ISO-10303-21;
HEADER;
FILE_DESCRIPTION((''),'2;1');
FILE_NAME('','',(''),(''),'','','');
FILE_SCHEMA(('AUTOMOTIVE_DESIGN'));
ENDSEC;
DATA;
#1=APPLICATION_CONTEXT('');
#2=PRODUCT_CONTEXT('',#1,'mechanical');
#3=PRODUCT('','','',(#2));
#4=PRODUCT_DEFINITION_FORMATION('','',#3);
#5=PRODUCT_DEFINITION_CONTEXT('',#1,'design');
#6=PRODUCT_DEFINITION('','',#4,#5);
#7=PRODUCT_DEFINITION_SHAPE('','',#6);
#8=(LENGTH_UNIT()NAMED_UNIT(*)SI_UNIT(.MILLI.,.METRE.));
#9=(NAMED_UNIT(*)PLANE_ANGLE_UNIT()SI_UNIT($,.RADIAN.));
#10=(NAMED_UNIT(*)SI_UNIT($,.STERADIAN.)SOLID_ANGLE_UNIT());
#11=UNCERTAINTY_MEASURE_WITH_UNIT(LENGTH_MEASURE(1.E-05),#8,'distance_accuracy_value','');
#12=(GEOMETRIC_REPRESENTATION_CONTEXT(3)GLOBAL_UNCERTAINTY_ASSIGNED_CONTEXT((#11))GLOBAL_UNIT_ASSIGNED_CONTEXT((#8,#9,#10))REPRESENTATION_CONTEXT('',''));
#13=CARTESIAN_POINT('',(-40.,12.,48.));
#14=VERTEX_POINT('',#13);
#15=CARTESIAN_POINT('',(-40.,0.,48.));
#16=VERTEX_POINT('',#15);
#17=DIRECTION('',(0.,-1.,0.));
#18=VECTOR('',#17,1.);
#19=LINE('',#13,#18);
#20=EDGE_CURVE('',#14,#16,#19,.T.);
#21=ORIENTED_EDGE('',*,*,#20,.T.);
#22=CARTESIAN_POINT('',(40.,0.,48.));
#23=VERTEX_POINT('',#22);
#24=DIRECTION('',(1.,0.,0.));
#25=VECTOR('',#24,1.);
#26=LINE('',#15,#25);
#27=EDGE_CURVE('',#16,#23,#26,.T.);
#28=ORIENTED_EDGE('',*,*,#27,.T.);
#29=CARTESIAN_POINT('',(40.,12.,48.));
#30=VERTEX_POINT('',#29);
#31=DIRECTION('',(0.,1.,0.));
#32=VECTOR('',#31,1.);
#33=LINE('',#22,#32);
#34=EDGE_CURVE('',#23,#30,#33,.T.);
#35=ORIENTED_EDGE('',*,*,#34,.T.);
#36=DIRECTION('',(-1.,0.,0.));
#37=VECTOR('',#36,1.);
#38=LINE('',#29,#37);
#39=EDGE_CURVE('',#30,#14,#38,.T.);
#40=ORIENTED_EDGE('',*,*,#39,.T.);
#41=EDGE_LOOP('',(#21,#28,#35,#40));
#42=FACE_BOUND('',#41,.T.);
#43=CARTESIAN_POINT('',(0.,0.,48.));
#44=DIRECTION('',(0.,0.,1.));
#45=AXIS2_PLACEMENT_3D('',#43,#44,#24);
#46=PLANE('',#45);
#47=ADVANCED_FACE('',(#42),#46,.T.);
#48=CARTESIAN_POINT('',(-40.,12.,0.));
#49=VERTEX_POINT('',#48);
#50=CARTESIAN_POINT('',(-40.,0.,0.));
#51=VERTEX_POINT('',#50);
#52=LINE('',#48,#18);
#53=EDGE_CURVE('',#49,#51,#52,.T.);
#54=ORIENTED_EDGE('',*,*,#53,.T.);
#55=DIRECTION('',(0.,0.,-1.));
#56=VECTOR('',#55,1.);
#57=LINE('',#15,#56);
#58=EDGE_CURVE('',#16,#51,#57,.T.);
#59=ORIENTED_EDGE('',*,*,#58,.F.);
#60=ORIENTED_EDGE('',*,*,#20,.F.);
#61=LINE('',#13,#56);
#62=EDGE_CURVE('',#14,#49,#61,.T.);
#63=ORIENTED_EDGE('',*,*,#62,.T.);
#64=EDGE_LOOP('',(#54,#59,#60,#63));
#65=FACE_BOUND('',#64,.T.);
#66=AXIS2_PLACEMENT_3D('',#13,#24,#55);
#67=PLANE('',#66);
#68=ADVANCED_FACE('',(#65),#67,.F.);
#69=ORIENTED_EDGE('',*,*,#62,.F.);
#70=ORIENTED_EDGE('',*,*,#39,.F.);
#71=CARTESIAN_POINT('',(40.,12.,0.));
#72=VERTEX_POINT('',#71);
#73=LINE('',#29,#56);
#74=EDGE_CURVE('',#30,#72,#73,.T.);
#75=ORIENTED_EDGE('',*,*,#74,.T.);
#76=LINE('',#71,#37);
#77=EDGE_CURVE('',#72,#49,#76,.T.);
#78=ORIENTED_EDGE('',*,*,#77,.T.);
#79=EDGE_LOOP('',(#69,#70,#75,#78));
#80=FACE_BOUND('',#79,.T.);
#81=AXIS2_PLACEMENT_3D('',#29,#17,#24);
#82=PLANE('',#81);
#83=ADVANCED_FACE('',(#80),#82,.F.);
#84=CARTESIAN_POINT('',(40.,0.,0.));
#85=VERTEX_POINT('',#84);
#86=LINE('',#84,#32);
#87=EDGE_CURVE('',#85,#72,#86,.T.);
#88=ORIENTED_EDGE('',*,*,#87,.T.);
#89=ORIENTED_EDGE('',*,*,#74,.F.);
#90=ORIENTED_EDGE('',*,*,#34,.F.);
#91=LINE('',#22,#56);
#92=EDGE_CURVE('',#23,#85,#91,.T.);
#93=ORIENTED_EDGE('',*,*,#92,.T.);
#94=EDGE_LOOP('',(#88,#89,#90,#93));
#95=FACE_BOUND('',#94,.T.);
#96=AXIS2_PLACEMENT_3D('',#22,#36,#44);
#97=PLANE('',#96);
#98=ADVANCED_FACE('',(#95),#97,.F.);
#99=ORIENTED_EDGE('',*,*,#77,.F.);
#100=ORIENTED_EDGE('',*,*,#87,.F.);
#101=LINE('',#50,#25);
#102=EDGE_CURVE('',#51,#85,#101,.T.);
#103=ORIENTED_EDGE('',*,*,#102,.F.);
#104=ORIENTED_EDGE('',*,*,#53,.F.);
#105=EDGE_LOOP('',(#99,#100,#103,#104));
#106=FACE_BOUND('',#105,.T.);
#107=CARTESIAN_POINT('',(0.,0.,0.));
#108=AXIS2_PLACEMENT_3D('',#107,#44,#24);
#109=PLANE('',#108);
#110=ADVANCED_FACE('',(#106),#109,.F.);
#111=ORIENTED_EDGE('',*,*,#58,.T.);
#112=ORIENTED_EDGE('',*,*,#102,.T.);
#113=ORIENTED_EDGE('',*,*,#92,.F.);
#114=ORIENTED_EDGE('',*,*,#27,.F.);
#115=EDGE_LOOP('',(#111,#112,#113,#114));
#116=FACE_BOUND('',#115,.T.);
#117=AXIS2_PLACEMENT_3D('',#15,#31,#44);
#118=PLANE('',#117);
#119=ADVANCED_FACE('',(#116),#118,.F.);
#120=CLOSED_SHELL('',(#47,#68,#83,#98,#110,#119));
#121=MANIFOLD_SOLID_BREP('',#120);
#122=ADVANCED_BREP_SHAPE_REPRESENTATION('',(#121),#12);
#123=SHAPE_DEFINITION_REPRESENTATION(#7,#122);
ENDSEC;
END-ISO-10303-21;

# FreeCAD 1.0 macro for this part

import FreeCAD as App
import Part
import Sketcher
Q = App.Units.Quantity

doc = App.newDocument("Part")
body = doc.addObject("PartDesign::Body", "Body")

sketch1 = doc.addObject("Sketcher::SketchObject", "Sketch")
body.addObject(sketch1)
sketch1.AttachmentSupport = (doc.XY_Plane, [""])
sketch1.MapMode = "FlatFace"
sketch1.addGeometry([
    Part.LineSegment(App.Vector(-40, 12, 0), App.Vector(-40, 0, 0)),
    Part.LineSegment(App.Vector(-40, 0, 0), App.Vector(40, 0, 0)),
    Part.LineSegment(App.Vector(40, 0, 0), App.Vector(40, 12, 0)),
    Part.LineSegment(App.Vector(40, 12, 0), App.Vector(-40, 12, 0)),
], False)
sketch1.addConstraint([
    Sketcher.Constraint("Coincident", 0, 2, 1, 1),
    Sketcher.Constraint("Coincident", 1, 2, 2, 1),
    Sketcher.Constraint("Coincident", 2, 2, 3, 1),
    Sketcher.Constraint("Coincident", 3, 2, 0, 1),
    Sketcher.Constraint("Vertical", 0),
    Sketcher.Constraint("Horizontal", 1),
    Sketcher.Constraint("Vertical", 2),
    Sketcher.Constraint("Horizontal", 3),
    Sketcher.Constraint("Symmetric", 0, 2, 1, 2, -1, 1),
    Sketcher.Constraint("DistanceX", 1, 1, 1, 2, Q("80 mm")),
    Sketcher.Constraint("DistanceY", 0, 2, 0, 1, Q("12 mm")),
])
pad1 = doc.addObject("PartDesign::Pad", "Pad")
body.addObject(pad1)
pad1.Profile = sketch1
pad1.Length = 48

doc.recompute()
